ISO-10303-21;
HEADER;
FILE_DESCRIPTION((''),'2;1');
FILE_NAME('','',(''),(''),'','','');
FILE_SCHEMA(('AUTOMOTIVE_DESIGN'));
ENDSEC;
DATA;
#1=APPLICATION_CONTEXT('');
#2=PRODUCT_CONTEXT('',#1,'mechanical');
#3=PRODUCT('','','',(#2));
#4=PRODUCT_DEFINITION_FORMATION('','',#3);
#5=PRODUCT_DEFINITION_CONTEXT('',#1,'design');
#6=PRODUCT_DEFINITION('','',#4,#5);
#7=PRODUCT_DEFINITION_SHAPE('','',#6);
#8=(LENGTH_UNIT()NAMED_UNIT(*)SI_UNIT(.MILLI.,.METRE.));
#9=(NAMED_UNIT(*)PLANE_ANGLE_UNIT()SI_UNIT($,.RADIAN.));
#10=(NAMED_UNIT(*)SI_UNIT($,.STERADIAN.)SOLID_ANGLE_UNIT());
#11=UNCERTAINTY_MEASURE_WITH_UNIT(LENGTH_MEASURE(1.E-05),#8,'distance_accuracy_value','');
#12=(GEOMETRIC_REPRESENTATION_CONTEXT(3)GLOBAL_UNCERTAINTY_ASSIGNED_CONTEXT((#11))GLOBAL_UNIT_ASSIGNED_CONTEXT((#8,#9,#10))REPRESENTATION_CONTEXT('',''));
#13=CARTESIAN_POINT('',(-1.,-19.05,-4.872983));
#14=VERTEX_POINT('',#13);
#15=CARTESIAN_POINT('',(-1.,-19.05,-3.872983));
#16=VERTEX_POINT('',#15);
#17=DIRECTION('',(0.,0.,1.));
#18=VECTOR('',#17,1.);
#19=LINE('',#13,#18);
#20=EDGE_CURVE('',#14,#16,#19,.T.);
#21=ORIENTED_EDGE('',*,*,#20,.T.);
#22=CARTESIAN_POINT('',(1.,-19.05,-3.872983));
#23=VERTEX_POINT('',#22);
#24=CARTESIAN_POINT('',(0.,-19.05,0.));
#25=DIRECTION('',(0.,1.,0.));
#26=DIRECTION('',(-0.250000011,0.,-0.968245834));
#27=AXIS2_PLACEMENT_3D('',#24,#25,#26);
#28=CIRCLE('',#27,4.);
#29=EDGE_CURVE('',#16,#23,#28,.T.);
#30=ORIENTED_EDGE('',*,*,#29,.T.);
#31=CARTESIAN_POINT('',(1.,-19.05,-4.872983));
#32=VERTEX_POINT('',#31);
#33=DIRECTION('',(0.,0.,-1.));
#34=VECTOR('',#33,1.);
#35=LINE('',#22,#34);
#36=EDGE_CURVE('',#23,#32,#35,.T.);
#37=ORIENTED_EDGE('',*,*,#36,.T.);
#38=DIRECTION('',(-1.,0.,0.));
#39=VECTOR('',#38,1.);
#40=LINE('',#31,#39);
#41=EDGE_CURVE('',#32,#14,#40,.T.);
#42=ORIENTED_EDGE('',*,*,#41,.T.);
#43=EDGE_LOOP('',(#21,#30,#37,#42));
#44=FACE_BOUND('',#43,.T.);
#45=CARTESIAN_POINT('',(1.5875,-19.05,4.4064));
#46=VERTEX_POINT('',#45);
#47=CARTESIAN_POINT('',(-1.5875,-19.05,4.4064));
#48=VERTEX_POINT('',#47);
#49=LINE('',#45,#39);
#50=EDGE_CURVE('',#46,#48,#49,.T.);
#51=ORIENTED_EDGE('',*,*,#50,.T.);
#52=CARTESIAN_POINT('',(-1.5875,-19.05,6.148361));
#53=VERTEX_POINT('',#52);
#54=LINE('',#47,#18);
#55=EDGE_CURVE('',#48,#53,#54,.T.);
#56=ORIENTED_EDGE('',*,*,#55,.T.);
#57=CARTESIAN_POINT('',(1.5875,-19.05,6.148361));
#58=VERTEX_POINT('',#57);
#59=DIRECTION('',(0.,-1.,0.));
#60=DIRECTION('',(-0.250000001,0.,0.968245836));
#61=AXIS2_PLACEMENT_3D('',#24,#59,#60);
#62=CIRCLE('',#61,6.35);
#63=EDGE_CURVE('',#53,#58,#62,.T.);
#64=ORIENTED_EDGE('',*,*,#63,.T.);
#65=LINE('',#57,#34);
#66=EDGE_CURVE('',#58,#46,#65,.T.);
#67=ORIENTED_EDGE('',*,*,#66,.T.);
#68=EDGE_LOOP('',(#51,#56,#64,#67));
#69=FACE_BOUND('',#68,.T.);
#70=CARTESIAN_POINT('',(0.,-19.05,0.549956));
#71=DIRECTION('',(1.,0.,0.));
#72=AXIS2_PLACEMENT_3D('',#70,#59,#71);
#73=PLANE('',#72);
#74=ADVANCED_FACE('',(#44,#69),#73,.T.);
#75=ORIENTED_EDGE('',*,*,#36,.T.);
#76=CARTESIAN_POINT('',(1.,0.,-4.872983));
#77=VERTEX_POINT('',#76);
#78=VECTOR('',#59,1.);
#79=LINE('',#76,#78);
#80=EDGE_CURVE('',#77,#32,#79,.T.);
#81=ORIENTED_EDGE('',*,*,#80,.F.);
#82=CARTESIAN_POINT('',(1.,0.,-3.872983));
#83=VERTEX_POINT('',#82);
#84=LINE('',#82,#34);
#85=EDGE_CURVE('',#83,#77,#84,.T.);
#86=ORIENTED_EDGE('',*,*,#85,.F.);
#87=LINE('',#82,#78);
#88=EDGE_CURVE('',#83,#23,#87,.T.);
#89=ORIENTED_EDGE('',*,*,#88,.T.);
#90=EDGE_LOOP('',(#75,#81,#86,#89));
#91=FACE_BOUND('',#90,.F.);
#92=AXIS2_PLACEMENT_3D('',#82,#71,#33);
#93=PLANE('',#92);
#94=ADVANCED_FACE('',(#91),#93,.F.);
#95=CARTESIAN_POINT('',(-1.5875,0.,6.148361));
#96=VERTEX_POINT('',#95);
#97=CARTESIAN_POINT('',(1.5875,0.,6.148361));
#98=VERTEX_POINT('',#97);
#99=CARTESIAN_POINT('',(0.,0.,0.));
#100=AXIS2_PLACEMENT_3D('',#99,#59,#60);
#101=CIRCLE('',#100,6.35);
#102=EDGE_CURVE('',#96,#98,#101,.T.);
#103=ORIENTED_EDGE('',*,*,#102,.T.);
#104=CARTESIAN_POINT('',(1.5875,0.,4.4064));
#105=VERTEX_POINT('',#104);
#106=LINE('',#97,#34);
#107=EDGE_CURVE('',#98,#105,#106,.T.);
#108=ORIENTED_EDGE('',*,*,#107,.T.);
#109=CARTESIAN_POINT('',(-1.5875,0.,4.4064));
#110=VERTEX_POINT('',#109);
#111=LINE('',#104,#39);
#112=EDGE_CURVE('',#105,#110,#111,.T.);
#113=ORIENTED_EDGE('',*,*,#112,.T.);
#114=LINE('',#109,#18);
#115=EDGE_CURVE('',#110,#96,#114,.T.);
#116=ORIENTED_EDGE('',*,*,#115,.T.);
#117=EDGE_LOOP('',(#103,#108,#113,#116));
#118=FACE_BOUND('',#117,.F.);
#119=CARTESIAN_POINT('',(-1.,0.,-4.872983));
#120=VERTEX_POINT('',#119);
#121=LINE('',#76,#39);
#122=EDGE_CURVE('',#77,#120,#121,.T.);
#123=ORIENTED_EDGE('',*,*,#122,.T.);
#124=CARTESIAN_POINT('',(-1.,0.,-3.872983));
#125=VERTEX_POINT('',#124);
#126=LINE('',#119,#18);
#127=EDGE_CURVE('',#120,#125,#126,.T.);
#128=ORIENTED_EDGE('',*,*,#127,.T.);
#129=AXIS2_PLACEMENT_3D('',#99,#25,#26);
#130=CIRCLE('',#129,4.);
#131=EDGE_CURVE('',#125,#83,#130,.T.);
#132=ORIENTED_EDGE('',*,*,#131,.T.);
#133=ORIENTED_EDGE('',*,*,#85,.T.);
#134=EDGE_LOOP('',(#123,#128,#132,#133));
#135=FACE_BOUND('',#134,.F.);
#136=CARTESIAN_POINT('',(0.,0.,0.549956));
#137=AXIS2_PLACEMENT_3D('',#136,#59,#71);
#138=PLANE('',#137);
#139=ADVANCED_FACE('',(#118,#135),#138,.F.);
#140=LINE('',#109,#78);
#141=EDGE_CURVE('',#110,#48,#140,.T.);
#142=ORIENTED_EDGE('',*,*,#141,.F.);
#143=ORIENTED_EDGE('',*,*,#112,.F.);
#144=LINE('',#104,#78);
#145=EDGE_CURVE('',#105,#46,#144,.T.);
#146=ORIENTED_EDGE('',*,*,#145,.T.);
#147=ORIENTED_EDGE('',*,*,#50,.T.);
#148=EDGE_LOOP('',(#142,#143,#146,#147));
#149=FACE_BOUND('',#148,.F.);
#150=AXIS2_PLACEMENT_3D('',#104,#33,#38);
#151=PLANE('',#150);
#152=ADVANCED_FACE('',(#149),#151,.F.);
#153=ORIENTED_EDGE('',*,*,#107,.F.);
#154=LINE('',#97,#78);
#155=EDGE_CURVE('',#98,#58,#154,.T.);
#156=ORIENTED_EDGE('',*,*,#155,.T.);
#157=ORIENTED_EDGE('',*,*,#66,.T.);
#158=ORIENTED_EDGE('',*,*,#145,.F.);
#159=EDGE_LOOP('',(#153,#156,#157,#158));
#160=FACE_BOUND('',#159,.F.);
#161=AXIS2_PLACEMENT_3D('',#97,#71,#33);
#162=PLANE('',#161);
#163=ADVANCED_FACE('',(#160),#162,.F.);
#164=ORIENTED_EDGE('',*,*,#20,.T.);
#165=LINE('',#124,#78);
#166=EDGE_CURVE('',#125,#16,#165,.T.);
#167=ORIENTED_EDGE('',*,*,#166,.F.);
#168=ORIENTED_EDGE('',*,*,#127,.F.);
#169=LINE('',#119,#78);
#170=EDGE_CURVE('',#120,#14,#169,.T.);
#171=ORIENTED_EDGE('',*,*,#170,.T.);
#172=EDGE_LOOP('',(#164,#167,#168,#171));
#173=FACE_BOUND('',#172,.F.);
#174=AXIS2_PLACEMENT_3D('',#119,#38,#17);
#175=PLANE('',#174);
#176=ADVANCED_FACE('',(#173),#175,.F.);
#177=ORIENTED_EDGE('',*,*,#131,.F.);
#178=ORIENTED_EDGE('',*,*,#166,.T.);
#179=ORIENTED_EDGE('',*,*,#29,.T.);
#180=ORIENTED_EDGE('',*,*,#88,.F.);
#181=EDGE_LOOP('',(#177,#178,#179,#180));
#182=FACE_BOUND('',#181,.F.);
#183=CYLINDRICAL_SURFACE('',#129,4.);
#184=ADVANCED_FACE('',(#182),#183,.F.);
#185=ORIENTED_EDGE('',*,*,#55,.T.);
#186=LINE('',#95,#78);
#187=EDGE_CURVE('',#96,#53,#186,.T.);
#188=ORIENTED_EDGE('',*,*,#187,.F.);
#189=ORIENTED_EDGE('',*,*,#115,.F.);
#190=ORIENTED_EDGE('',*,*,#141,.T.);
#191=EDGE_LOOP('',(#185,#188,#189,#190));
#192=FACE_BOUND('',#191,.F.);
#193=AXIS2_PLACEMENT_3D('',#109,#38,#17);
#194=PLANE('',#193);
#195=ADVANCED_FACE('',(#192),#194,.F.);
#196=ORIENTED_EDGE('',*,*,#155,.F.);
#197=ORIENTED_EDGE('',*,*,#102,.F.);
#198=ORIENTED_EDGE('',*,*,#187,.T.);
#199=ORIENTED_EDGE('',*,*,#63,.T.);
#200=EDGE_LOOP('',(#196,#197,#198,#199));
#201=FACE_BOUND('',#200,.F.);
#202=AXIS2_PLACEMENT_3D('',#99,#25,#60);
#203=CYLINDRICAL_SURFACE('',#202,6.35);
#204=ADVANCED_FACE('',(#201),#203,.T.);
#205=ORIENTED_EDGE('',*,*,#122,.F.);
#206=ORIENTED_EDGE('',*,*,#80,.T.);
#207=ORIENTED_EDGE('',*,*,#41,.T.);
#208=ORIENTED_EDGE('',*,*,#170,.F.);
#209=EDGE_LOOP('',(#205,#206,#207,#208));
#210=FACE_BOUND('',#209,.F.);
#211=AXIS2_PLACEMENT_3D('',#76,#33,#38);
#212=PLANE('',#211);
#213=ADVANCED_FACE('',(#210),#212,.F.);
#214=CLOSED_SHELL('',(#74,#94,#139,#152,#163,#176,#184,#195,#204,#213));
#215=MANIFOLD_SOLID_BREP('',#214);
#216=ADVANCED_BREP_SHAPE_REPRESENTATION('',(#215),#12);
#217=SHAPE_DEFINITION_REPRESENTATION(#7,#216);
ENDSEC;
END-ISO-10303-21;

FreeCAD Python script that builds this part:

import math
import FreeCAD as App
import Part
import Sketcher

V = App.Vector

doc = App.newDocument("Part")
params = doc.addObject("Spreadsheet::Sheet", "Params")
for row, (alias, value) in enumerate([
    ("sketch1_radius", "4 mm"),
    ("sketch1_width", "2 mm"),
    ("sketch1_height", "1 mm"),
    ("sketch1_radius2", "6.35 mm"),
    ("pad1_length", "19.05 mm"),
], start=1):
    params.set(f"A{row}", alias)
    params.set(f"B{row}", "=" + value)
    params.setAlias(f"B{row}", alias)

body = doc.addObject("PartDesign::Body", "Body")

sketch1 = body.newObject("Sketcher::SketchObject", "Sketch")
sketch1.AttachmentSupport = (doc.getObject("XZ_Plane"), [""])
sketch1.MapMode = "FlatFace"
sketch1.addGeometry(Part.LineSegment(V(-1.6, 4.4, 0), V(-1.6, 6.1, 0)), False)
sketch1.addGeometry(Part.ArcOfCircle(Part.Circle(V(0, 0, 0), V(0, 0, 1), 6.3), math.radians(104), math.radians(436)), False)
sketch1.addGeometry(Part.LineSegment(V(1.6, 6.1, 0), V(1.6, 4.4, 0)), False)
sketch1.addGeometry(Part.LineSegment(V(1.6, 4.4, 0), V(-1.6, 4.4, 0)), False)
sketch1.addGeometry(Part.LineSegment(V(-1, -4.9, 0), V(-1, -3.9, 0)), False)
sketch1.addGeometry(Part.ArcOfCircle(Part.Circle(V(0, 0, 0), V(0, 0, 1), 4), math.radians(-76), math.radians(256)), False)
sketch1.addGeometry(Part.LineSegment(V(1, -3.9, 0), V(1, -4.9, 0)), False)
sketch1.addGeometry(Part.LineSegment(V(1, -4.9, 0), V(-1, -4.9, 0)), False)
sketch1.addConstraint(Sketcher.Constraint("Coincident", 0, 2, 1, 1))
sketch1.addConstraint(Sketcher.Constraint("Coincident", 1, 2, 2, 1))
sketch1.addConstraint(Sketcher.Constraint("Coincident", 2, 2, 3, 1))
sketch1.addConstraint(Sketcher.Constraint("Coincident", 3, 2, 0, 1))
sketch1.addConstraint(Sketcher.Constraint("Coincident", 4, 2, 5, 2))
sketch1.addConstraint(Sketcher.Constraint("Coincident", 5, 1, 6, 1))
sketch1.addConstraint(Sketcher.Constraint("Coincident", 6, 2, 7, 1))
sketch1.addConstraint(Sketcher.Constraint("Coincident", 7, 2, 4, 1))
sketch1.addConstraint(Sketcher.Constraint("Vertical", 0))
sketch1.addConstraint(Sketcher.Constraint("Vertical", 2))
sketch1.addConstraint(Sketcher.Constraint("Horizontal", 3))
sketch1.addConstraint(Sketcher.Constraint("Vertical", 4))
sketch1.addConstraint(Sketcher.Constraint("Vertical", 6))
sketch1.addConstraint(Sketcher.Constraint("Horizontal", 7))
sketch1.addConstraint(Sketcher.Constraint("Coincident", 1, 3, -1, 1))
sketch1.addConstraint(Sketcher.Constraint("Coincident", 5, 3, -1, 1))
sketch1.addConstraint(Sketcher.Constraint("Horizontal", 0, 2, 1, 2))
sketch1.addConstraint(Sketcher.Constraint("Horizontal", 4, 2, 5, 1))
sketch1.addConstraint(Sketcher.Constraint("Radius", 5, 4.0))
sketch1.addConstraint(Sketcher.Constraint("DistanceX", 7, 2, 7, 1, 2.0))
sketch1.addConstraint(Sketcher.Constraint("DistanceY", 4, 1, 4, 2, 1.0))
sketch1.addConstraint(Sketcher.Constraint("Radius", 1, 6.35))
sketch1.addConstraint(Sketcher.Constraint("DistanceX", 3, 2, 3, 1, 3.175))
sketch1.addConstraint(Sketcher.Constraint("DistanceY", 0, 1, 0, 2, 1.741961))
sketch1.setExpression("Constraints[18]", "Params.sketch1_radius")
sketch1.setExpression("Constraints[19]", "Params.sketch1_width")
sketch1.setExpression("Constraints[20]", "Params.sketch1_height")
sketch1.setExpression("Constraints[21]", "Params.sketch1_radius2")
pad1 = body.newObject("PartDesign::Pad", "Pad")
pad1.Profile = sketch1
pad1.setExpression("Length", "Params.pad1_length")

doc.recompute()
